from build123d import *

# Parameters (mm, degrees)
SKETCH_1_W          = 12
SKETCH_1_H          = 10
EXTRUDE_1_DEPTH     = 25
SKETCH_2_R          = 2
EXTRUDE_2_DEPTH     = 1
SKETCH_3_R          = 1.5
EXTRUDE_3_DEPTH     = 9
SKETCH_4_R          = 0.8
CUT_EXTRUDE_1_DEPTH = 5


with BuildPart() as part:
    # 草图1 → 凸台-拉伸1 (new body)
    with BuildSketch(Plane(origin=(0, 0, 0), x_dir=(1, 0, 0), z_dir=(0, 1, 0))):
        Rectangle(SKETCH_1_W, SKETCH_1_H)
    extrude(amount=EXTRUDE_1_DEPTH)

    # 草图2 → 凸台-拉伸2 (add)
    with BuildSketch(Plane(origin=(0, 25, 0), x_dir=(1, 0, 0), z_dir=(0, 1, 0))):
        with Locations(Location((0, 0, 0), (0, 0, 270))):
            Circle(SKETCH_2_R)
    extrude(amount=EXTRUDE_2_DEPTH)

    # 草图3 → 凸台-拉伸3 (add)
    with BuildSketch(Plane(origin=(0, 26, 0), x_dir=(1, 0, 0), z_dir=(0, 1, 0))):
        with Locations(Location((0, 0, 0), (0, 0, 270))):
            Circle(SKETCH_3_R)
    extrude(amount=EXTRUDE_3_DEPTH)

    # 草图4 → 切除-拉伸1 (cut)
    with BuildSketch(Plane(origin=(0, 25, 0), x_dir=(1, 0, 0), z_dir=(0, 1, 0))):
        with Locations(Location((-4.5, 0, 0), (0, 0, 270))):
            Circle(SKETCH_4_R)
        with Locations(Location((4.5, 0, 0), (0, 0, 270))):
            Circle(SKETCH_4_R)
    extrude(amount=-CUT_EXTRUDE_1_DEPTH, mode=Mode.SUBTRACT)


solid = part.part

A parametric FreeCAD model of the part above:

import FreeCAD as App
import Part
import Sketcher
from FreeCAD import Vector

doc = App.newDocument("Part")
body = doc.addObject("PartDesign::Body", "Body")

sketch1 = body.newObject("Sketcher::SketchObject", "Sketch")
sketch1.AttachmentSupport = (doc.getObject("XZ_Plane"), [""])
sketch1.MapMode = "FlatFace"
sketch1.addGeometry([
    Part.LineSegment(Vector(-6, -5, 0), Vector(-6, 5, 0)),
    Part.LineSegment(Vector(-6, 5, 0), Vector(6, 5, 0)),
    Part.LineSegment(Vector(6, 5, 0), Vector(6, -5, 0)),
    Part.LineSegment(Vector(6, -5, 0), Vector(-6, -5, 0)),
], False)
sketch1.addConstraint([
    Sketcher.Constraint("Coincident", 0, 2, 1, 1),
    Sketcher.Constraint("Coincident", 1, 2, 2, 1),
    Sketcher.Constraint("Coincident", 2, 2, 3, 1),
    Sketcher.Constraint("Coincident", 3, 2, 0, 1),
    Sketcher.Constraint("Vertical", 0),
    Sketcher.Constraint("Horizontal", 1),
    Sketcher.Constraint("Vertical", 2),
    Sketcher.Constraint("Horizontal", 3),
    Sketcher.Constraint("Symmetric", 0, 2, 2, 2, -1, 1),
    Sketcher.Constraint("DistanceX", 1, 1, 1, 2, 12.0),
    Sketcher.Constraint("DistanceY", 0, 1, 0, 2, 10.0),
])
pad1 = body.newObject("PartDesign::Pad", "Pad")
pad1.Profile = sketch1
pad1.Length = 25
pad1.Reversed = True

sketch2 = body.newObject("Sketcher::SketchObject", "Sketch001")
sketch2.AttachmentSupport = (doc.getObject("XZ_Plane"), [""])
sketch2.MapMode = "FlatFace"
sketch2.AttachmentOffset = App.Placement(Vector(0, 0, -25), App.Rotation())
sketch2.addGeometry(Part.Circle(Vector(0, 0, 0), Vector(0, 0, 1), 2), False)
sketch2.addConstraint([
    Sketcher.Constraint("Coincident", 0, 3, -1, 1),
    Sketcher.Constraint("Diameter", 0, 4.0),
])
pad2 = body.newObject("PartDesign::Pad", "Pad001")
pad2.Profile = sketch2
pad2.Length = 1
pad2.Reversed = True

sketch3 = body.newObject("Sketcher::SketchObject", "Sketch002")
sketch3.AttachmentSupport = (doc.getObject("XZ_Plane"), [""])
sketch3.MapMode = "FlatFace"
sketch3.AttachmentOffset = App.Placement(Vector(0, 0, -26), App.Rotation())
sketch3.addGeometry(Part.Circle(Vector(0, 0, 0), Vector(0, 0, 1), 1.5), False)
sketch3.addConstraint([
    Sketcher.Constraint("Coincident", 0, 3, -1, 1),
    Sketcher.Constraint("Diameter", 0, 3.0),
])
pad3 = body.newObject("PartDesign::Pad", "Pad002")
pad3.Profile = sketch3
pad3.Length = 9
pad3.Reversed = True

sketch4 = body.newObject("Sketcher::SketchObject", "Sketch003")
sketch4.AttachmentSupport = (doc.getObject("XZ_Plane"), [""])
sketch4.MapMode = "FlatFace"
sketch4.AttachmentOffset = App.Placement(Vector(0, 0, -25), App.Rotation())
sketch4.addGeometry([
    Part.Circle(Vector(-4.5, 0, 0), Vector(0, 0, 1), 0.8),
    Part.Circle(Vector(4.5, 0, 0), Vector(0, 0, 1), 0.8),
], False)
sketch4.addConstraint([
    Sketcher.Constraint("Equal", 0, 1),
    Sketcher.Constraint("Symmetric", 0, 3, 1, 3, -1, 1),
    Sketcher.Constraint("PointOnObject", 0, 3, -1),
    Sketcher.Constraint("Diameter", 0, 1.6),
    Sketcher.Constraint("DistanceX", 0, 3, 1, 3, 9.0),
])
pocket1 = body.newObject("PartDesign::Pocket", "Pocket")
pocket1.Profile = sketch4
pocket1.Length = 5
pocket1.Reversed = True

doc.recompute()
